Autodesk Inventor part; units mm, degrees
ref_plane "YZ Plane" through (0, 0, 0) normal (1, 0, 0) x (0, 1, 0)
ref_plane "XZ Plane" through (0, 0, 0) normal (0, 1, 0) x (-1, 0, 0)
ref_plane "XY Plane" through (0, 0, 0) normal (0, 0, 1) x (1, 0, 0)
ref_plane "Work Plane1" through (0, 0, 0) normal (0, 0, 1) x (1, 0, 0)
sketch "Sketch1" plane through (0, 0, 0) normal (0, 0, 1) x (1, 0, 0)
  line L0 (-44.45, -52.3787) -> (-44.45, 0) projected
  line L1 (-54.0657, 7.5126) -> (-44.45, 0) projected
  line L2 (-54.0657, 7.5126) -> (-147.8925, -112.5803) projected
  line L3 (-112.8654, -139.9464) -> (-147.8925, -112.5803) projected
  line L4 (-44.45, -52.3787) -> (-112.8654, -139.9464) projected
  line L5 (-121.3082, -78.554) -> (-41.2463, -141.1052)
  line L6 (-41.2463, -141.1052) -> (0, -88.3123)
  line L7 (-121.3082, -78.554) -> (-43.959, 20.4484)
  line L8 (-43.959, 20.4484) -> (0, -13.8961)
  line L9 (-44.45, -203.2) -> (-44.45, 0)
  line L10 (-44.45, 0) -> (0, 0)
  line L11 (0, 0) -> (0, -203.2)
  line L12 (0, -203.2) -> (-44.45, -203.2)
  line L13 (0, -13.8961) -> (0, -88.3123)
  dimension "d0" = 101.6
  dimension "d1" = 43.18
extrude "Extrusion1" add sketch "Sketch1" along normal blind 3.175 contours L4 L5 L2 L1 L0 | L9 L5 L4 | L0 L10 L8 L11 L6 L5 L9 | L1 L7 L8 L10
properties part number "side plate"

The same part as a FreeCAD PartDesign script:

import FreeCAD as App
import Part
import Sketcher
from FreeCAD import Vector
Q = App.Units.Quantity


def add_polygon(sketch, points):
    """Adds a closed chain of lines whose ends are joined by coincident constraints."""
    first, n = sketch.GeometryCount, len(points)
    for a, b in zip(points, points[1:] + points[:1]):
        sketch.addGeometry(Part.LineSegment(App.Vector(*a, 0), App.Vector(*b, 0)), False)
    for i in range(n):
        sketch.addConstraint(Sketcher.Constraint("Coincident", first + i, 2, first + (i + 1) % n, 1))

doc = App.newDocument("Part")
body = doc.addObject("PartDesign::Body", "Body")

sketch1 = doc.addObject("Sketcher::SketchObject", "Sketch")
body.addObject(sketch1)
sketch1.AttachmentSupport = (doc.XY_Plane, [""])
sketch1.MapMode = "FlatFace"
add_polygon(sketch1, [(-121, -79), (-41, -141), (0, -88), (0, -14), (-44, 20), (-54, 8)])
sketch1.addConstraint([
    Sketcher.Constraint("Vertical", 2),
    Sketcher.Constraint("PointOnObject", 1, 2, -2),
    Sketcher.Constraint("Perpendicular", 0, 1),
    Sketcher.Constraint("Perpendicular", 1, 3),
    Sketcher.Constraint("Perpendicular", 3, 4),
    Sketcher.Constraint("Parallel", 4, 5),
    Sketcher.Constraint("Distance", 0, Q("4 in")),
    Sketcher.Constraint("Angle", 0, Q("-38 deg")),
    Sketcher.Constraint("Distance", 5, Q("4.3 in")),
    Sketcher.Constraint("Distance", 1, Q("2.6376 in")),
    Sketcher.Constraint("Distance", 4, Q("0.6463 in")),
    Sketcher.Constraint("DistanceY", 2, 2, -1, 1, Q("0.5471 in")),
])
pad1 = doc.addObject("PartDesign::Pad", "Pad")
body.addObject(pad1)
pad1.Profile = sketch1
pad1.Length = Q("0.125 in")

doc.recompute()
